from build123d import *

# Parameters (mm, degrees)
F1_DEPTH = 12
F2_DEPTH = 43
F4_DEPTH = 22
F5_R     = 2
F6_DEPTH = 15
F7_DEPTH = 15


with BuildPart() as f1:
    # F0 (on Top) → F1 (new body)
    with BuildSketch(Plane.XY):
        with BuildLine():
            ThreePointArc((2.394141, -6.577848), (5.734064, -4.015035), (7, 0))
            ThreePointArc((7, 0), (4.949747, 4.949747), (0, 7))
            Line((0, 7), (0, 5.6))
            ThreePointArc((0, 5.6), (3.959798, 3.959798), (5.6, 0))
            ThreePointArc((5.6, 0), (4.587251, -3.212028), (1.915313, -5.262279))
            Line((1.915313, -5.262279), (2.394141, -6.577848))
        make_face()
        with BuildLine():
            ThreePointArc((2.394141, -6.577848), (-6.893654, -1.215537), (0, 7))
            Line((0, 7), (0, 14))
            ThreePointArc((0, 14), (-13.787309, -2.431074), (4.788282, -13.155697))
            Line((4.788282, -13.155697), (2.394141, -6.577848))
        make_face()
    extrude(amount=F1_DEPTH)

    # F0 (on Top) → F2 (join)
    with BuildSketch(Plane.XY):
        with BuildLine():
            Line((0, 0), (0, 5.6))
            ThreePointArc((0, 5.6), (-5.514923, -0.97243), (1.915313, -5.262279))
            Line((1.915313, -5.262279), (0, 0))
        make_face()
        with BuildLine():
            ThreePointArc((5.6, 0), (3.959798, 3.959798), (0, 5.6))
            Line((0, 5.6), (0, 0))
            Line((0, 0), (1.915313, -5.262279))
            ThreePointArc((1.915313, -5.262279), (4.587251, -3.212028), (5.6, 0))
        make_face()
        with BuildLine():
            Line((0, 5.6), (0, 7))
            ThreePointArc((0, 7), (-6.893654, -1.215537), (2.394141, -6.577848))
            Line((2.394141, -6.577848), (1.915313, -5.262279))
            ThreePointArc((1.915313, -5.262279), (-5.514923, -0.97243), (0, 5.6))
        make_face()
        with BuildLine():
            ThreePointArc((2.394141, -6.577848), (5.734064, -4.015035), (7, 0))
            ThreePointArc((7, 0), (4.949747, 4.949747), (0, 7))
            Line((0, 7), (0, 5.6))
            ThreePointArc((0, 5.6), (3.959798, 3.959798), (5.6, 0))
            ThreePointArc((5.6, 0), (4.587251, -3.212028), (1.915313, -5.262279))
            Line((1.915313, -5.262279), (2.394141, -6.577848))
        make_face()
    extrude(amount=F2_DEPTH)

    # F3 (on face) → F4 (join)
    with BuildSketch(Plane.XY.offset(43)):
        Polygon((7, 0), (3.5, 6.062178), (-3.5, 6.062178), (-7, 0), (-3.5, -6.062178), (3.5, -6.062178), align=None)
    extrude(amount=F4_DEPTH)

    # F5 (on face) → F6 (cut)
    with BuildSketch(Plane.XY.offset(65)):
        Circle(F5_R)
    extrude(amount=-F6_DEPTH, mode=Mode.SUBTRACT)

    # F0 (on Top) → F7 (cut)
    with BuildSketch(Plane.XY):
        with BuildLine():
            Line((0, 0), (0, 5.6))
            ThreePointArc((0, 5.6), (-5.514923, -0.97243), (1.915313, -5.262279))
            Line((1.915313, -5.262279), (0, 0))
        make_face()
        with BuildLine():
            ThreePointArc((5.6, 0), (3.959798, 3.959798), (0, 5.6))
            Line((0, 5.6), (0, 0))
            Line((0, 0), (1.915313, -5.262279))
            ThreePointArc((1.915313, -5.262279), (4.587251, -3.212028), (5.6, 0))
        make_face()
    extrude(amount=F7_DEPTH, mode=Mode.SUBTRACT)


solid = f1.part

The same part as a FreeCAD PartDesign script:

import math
import FreeCAD as App
import Part
import Sketcher

V = App.Vector
Q = App.Units.Quantity

doc = App.newDocument("Part")
body = doc.addObject("PartDesign::Body", "Body")
body.AllowCompound = True

sketch1 = doc.addObject("Sketcher::SketchObject", "Sketch")
body.addObject(sketch1)
sketch1.AttachmentSupport = (doc.XY_Plane, [""])
sketch1.MapMode = "FlatFace"
sketch1.addGeometry(Part.ArcOfCircle(Part.Circle(V(0, 0, 0), V(0, 0, 1), 7), math.radians(-70), math.radians(0)), False)
sketch1.addGeometry(Part.ArcOfCircle(Part.Circle(V(0, 0, 0), V(0, 0, 1), 7), math.radians(0), math.radians(90)), False)
sketch1.addGeometry(Part.LineSegment(V(0, 7, 0), V(0, 5.6, 0)), False)
sketch1.addGeometry(Part.ArcOfCircle(Part.Circle(V(0, 0, 0), V(0, 0, 1), 5.6), math.radians(0), math.radians(90)), False)
sketch1.addGeometry(Part.ArcOfCircle(Part.Circle(V(0, 0, 0), V(0, 0, 1), 5.6), math.radians(-70), math.radians(0)), False)
sketch1.addGeometry(Part.LineSegment(V(1.9, -5.3, 0), V(2.4, -6.6, 0)), False)
sketch1.addGeometry(Part.ArcOfCircle(Part.Circle(V(0, 0, 0), V(0, 0, 1), 7), math.radians(90), math.radians(290)), False)
sketch1.addGeometry(Part.LineSegment(V(0, 7, 0), V(0, 14, 0)), False)
sketch1.addGeometry(Part.ArcOfCircle(Part.Circle(V(0, 0, 0), V(0, 0, 1), 14), math.radians(90), math.radians(290)), False)
sketch1.addGeometry(Part.LineSegment(V(4.8, -13.2, 0), V(2.4, -6.6, 0)), False)
sketch1.addConstraint(Sketcher.Constraint("Tangent", 0, 2, 1, 1))
sketch1.addConstraint(Sketcher.Constraint("Coincident", 1, 2, 2, 1))
sketch1.addConstraint(Sketcher.Constraint("Coincident", 2, 2, 3, 2))
sketch1.addConstraint(Sketcher.Constraint("Tangent", 3, 1, 4, 2))
sketch1.addConstraint(Sketcher.Constraint("Coincident", 4, 1, 5, 1))
sketch1.addConstraint(Sketcher.Constraint("Coincident", 5, 2, 0, 1))
sketch1.addConstraint(Sketcher.Constraint("Coincident", 6, 1, 7, 1))
sketch1.addConstraint(Sketcher.Constraint("Coincident", 7, 2, 8, 1))
sketch1.addConstraint(Sketcher.Constraint("Coincident", 8, 2, 9, 1))
sketch1.addConstraint(Sketcher.Constraint("Coincident", 9, 2, 6, 2))
sketch1.addConstraint(Sketcher.Constraint("Vertical", 2))
sketch1.addConstraint(Sketcher.Constraint("Vertical", 7))
sketch1.addConstraint(Sketcher.Constraint("Coincident", 0, 3, -1, 1))
sketch1.addConstraint(Sketcher.Constraint("Coincident", 3, 3, -1, 1))
sketch1.addConstraint(Sketcher.Constraint("Coincident", 6, 3, -1, 1))
sketch1.addConstraint(Sketcher.Constraint("Coincident", 8, 3, -1, 1))
sketch1.addConstraint(Sketcher.Constraint("Coincident", 6, 1, 1, 2))
sketch1.addConstraint(Sketcher.Constraint("Coincident", 9, 2, 5, 2))
sketch1.addConstraint(Sketcher.Constraint("PointOnObject", 0, 2, -1))
sketch1.addConstraint(Sketcher.Constraint("PointOnObject", 1, 2, -2))
sketch1.addConstraint(Sketcher.Constraint("PointOnObject", 3, 1, -1))
sketch1.addConstraint(Sketcher.Constraint("Parallel", 5, 9))
sketch1.addConstraint(Sketcher.Constraint("Radius", 0, 7.0))
sketch1.addConstraint(Sketcher.Constraint("Radius", 8, 14.0))
sketch1.addConstraint(Sketcher.Constraint("Radius", 3, 5.6))
sketch1.addConstraint(Sketcher.Constraint("Angle", 5, Q("-69.999998 deg")))
sketch1.addConstraint(Sketcher.Constraint("Distance", 5, 1.399999))
sketch1.addConstraint(Sketcher.Constraint("DistanceY", 4, 1, -1, 1, 5.262279))
pad1 = doc.addObject("PartDesign::Pad", "Pad")
body.addObject(pad1)
pad1.Profile = sketch1
pad1.Length = 12

sketch2 = doc.addObject("Sketcher::SketchObject", "Sketch001")
body.addObject(sketch2)
sketch2.AttachmentSupport = (doc.XY_Plane, [""])
sketch2.MapMode = "FlatFace"
sketch2.addGeometry(Part.ArcOfCircle(Part.Circle(V(0, 0, 0), V(0, 0, 1), 7), math.radians(90), math.radians(290)), False)
sketch2.addGeometry(Part.ArcOfCircle(Part.Circle(V(0, 0, 0), V(0, 0, 1), 7), math.radians(-70), math.radians(0)), False)
sketch2.addGeometry(Part.ArcOfCircle(Part.Circle(V(0, 0, 0), V(0, 0, 1), 7), math.radians(0), math.radians(90)), False)
sketch2.addConstraint(Sketcher.Constraint("Tangent", 0, 2, 1, 1))
sketch2.addConstraint(Sketcher.Constraint("Tangent", 1, 2, 2, 1))
sketch2.addConstraint(Sketcher.Constraint("Tangent", 2, 2, 0, 1))
sketch2.addConstraint(Sketcher.Constraint("Coincident", 0, 3, -1, 1))
sketch2.addConstraint(Sketcher.Constraint("PointOnObject", 1, 2, -1))
sketch2.addConstraint(Sketcher.Constraint("PointOnObject", 2, 2, -2))
sketch2.addConstraint(Sketcher.Constraint("Radius", 0, 7.0))
sketch2.addConstraint(Sketcher.Constraint("DistanceX", -1, 1, 0, 2, 2.394141))
pad2 = doc.addObject("PartDesign::Pad", "Pad001")
body.addObject(pad2)
pad2.Profile = sketch2
pad2.Length = 43

sketch3 = doc.addObject("Sketcher::SketchObject", "Sketch002")
body.addObject(sketch3)
sketch3.AttachmentSupport = (doc.XY_Plane, [""])
sketch3.MapMode = "FlatFace"
sketch3.AttachmentOffset = App.Placement(V(0, 0, 43), App.Rotation())
sketch3.addGeometry(Part.LineSegment(V(7, 0, 0), V(4, 6, 0)), False)
sketch3.addGeometry(Part.LineSegment(V(4, 6, 0), V(-4, 6, 0)), False)
sketch3.addGeometry(Part.LineSegment(V(-4, 6, 0), V(-7, 0, 0)), False)
sketch3.addGeometry(Part.LineSegment(V(-7, 0, 0), V(-4, -6, 0)), False)
sketch3.addGeometry(Part.LineSegment(V(-4, -6, 0), V(4, -6, 0)), False)
sketch3.addGeometry(Part.LineSegment(V(4, -6, 0), V(7, 0, 0)), False)
sketch3.addConstraint(Sketcher.Constraint("Coincident", 0, 2, 1, 1))
sketch3.addConstraint(Sketcher.Constraint("Coincident", 1, 2, 2, 1))
sketch3.addConstraint(Sketcher.Constraint("Coincident", 2, 2, 3, 1))
sketch3.addConstraint(Sketcher.Constraint("Coincident", 3, 2, 4, 1))
sketch3.addConstraint(Sketcher.Constraint("Coincident", 4, 2, 5, 1))
sketch3.addConstraint(Sketcher.Constraint("Coincident", 5, 2, 0, 1))
sketch3.addConstraint(Sketcher.Constraint("Horizontal", 1))
sketch3.addConstraint(Sketcher.Constraint("Horizontal", 4))
sketch3.addConstraint(Sketcher.Constraint("Symmetric", 0, 2, 3, 2, -1, 1))
sketch3.addConstraint(Sketcher.Constraint("Symmetric", 2, 2, 5, 2, -1, 1))
sketch3.addConstraint(Sketcher.Constraint("PointOnObject", 2, 2, -1))
sketch3.addConstraint(Sketcher.Constraint("Parallel", 2, 5))
sketch3.addConstraint(Sketcher.Constraint("Vertical", 1, 2, 3, 2))
sketch3.addConstraint(Sketcher.Constraint("DistanceX", 1, 2, 1, 1, 7.0))
sketch3.addConstraint(Sketcher.Constraint("Angle", 0, Q("119.999999 deg")))
sketch3.addConstraint(Sketcher.Constraint("Distance", 0, 7.0))
pad3 = doc.addObject("PartDesign::Pad", "Pad002")
body.addObject(pad3)
pad3.Profile = sketch3
pad3.Length = 22

sketch4 = doc.addObject("Sketcher::SketchObject", "Sketch003")
body.addObject(sketch4)
sketch4.AttachmentSupport = (doc.XY_Plane, [""])
sketch4.MapMode = "FlatFace"
sketch4.AttachmentOffset = App.Placement(V(0, 0, 65), App.Rotation())
sketch4.addGeometry(Part.Circle(V(0, 0, 0), V(0, 0, 1), 2), False)
sketch4.addConstraint(Sketcher.Constraint("Coincident", 0, 3, -1, 1))
sketch4.addConstraint(Sketcher.Constraint("Diameter", 0, 4.0))
pocket1 = doc.addObject("PartDesign::Pocket", "Pocket")
body.addObject(pocket1)
pocket1.Profile = sketch4
pocket1.Length = 15

sketch5 = doc.addObject("Sketcher::SketchObject", "Sketch004")
body.addObject(sketch5)
sketch5.AttachmentSupport = (doc.XY_Plane, [""])
sketch5.MapMode = "FlatFace"
sketch5.addGeometry(Part.ArcOfCircle(Part.Circle(V(0, 0, 0), V(0, 0, 1), 6), math.radians(90), math.radians(290)), False)
sketch5.addGeometry(Part.ArcOfCircle(Part.Circle(V(0, 0, 0), V(0, 0, 1), 6), math.radians(-70), math.radians(0)), False)
sketch5.addGeometry(Part.ArcOfCircle(Part.Circle(V(0, 0, 0), V(0, 0, 1), 6), math.radians(0), math.radians(90)), False)
sketch5.addConstraint(Sketcher.Constraint("Tangent", 0, 2, 1, 1))
sketch5.addConstraint(Sketcher.Constraint("Tangent", 1, 2, 2, 1))
sketch5.addConstraint(Sketcher.Constraint("Tangent", 2, 2, 0, 1))
sketch5.addConstraint(Sketcher.Constraint("Coincident", 0, 3, -1, 1))
sketch5.addConstraint(Sketcher.Constraint("PointOnObject", 1, 2, -1))
sketch5.addConstraint(Sketcher.Constraint("PointOnObject", 2, 2, -2))
sketch5.addConstraint(Sketcher.Constraint("Radius", 0, 5.6))
sketch5.addConstraint(Sketcher.Constraint("DistanceY", 0, 2, -1, 1, 5.262279))
pocket2 = doc.addObject("PartDesign::Pocket", "Pocket001")
body.addObject(pocket2)
pocket2.Profile = sketch5
pocket2.Length = 15
pocket2.Reversed = True

doc.recompute()
